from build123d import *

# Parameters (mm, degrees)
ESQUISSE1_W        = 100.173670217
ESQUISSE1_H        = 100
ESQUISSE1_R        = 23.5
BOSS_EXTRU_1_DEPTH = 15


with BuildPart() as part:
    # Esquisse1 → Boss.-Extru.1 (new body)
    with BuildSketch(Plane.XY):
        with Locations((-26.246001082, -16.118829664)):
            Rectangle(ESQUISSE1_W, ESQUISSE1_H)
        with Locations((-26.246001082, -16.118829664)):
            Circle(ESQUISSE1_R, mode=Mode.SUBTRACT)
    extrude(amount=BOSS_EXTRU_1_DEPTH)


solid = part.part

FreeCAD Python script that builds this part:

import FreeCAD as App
import Part
import Sketcher

V = App.Vector

doc = App.newDocument("Part")
body = doc.addObject("PartDesign::Body", "Body")

# Sketch on XY plane
sketch1 = doc.addObject("Sketcher::SketchObject", "Sketch")
body.addObject(sketch1)
sketch1.AttachmentSupport = (doc.XY_Plane, [""])
sketch1.MapMode = "FlatFace"
sketch1.addGeometry(Part.LineSegment(V(-76, 34, 0), V(-76, -66, 0)), False)
sketch1.addGeometry(Part.LineSegment(V(-76, -66, 0), V(24, -66, 0)), False)
sketch1.addGeometry(Part.LineSegment(V(24, -66, 0), V(24, 34, 0)), False)
sketch1.addGeometry(Part.LineSegment(V(24, 34, 0), V(-76, 34, 0)), False)
sketch1.addGeometry(Part.Circle(V(-26, -16, 0), V(0, 0, 1), 24), False)
sketch1.addConstraint(Sketcher.Constraint("Coincident", 0, 2, 1, 1))
sketch1.addConstraint(Sketcher.Constraint("Coincident", 1, 2, 2, 1))
sketch1.addConstraint(Sketcher.Constraint("Coincident", 2, 2, 3, 1))
sketch1.addConstraint(Sketcher.Constraint("Coincident", 3, 2, 0, 1))
sketch1.addConstraint(Sketcher.Constraint("Vertical", 0))
sketch1.addConstraint(Sketcher.Constraint("Horizontal", 1))
sketch1.addConstraint(Sketcher.Constraint("Vertical", 2))
sketch1.addConstraint(Sketcher.Constraint("Horizontal", 3))
sketch1.addConstraint(Sketcher.Constraint("Diameter", 4, 47.0))
sketch1.addConstraint(Sketcher.Constraint("DistanceY", 0, 2, 0, 1, 100.0))
sketch1.addConstraint(Sketcher.Constraint("DistanceY", 0, 2, 4, 3, 50.0))
sketch1.addConstraint(Sketcher.Constraint("DistanceX", 4, 3, -1, 1, 26.246001))
sketch1.addConstraint(Sketcher.Constraint("DistanceX", 1, 1, 1, 2, 100.17367))
sketch1.addConstraint(Sketcher.Constraint("DistanceY", 4, 3, -1, 1, 16.11883))
sketch1.addConstraint(Sketcher.Constraint("DistanceX", 0, 2, -1, 1, 76.332836))
pad1 = doc.addObject("PartDesign::Pad", "Pad")
body.addObject(pad1)
pad1.Profile = sketch1
pad1.Length = 15

doc.recompute()
